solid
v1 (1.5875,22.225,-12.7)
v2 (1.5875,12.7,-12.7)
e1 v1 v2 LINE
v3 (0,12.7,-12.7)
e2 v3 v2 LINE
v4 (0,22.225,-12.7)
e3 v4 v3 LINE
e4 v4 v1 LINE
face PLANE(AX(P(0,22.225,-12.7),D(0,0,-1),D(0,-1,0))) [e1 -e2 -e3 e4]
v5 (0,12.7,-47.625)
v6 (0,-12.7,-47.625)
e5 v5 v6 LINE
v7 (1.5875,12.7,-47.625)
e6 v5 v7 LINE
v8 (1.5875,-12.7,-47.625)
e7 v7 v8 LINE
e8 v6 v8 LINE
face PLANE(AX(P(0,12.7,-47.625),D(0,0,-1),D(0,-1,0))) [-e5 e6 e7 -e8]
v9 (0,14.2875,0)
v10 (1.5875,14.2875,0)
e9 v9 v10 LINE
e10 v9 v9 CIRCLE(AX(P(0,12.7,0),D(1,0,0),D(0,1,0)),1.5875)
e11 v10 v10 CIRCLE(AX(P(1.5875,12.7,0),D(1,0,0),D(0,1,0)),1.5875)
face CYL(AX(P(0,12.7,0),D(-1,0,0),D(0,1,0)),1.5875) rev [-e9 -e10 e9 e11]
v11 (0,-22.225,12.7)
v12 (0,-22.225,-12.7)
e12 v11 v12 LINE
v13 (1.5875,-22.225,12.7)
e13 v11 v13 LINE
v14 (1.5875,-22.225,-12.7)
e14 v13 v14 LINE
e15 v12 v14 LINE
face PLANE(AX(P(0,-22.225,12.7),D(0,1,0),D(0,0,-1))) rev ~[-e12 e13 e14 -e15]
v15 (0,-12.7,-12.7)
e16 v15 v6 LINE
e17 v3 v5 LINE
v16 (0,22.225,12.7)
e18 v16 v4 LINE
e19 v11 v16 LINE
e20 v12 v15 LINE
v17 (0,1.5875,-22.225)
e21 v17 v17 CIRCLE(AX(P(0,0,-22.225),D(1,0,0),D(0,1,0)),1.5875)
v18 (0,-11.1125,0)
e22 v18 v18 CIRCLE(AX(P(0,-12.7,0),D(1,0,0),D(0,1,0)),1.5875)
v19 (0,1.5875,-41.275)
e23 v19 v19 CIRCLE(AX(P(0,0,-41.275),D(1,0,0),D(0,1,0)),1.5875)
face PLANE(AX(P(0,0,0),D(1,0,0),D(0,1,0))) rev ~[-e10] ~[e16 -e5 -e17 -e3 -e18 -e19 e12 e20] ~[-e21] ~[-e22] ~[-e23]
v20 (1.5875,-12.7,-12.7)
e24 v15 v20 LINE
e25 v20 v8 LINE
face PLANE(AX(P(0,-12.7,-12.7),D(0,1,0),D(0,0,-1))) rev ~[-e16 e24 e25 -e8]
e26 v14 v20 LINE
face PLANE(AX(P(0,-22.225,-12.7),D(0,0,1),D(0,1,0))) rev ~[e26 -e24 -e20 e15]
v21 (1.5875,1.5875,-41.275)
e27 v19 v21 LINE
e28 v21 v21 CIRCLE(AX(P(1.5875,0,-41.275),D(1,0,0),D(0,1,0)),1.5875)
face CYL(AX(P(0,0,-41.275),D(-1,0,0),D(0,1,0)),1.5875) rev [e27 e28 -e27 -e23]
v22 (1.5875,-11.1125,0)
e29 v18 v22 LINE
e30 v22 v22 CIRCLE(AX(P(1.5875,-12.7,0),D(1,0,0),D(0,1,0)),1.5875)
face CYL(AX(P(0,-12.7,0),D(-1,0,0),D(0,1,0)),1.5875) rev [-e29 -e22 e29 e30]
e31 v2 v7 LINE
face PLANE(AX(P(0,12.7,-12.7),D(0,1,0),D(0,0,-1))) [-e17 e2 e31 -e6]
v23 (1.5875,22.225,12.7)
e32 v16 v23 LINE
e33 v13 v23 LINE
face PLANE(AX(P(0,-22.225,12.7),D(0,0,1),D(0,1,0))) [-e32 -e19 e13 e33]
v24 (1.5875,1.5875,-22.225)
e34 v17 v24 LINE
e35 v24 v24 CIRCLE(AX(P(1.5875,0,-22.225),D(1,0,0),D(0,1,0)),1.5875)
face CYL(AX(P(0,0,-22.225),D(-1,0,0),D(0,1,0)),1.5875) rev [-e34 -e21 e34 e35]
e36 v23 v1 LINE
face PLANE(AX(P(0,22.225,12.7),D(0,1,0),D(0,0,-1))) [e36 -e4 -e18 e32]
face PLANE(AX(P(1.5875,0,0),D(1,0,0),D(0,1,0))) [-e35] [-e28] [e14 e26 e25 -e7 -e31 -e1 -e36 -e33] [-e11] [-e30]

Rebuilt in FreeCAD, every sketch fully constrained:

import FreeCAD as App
import Part
import Sketcher

V = App.Vector
Q = App.Units.Quantity

doc = App.newDocument("Part")
params = doc.addObject("Spreadsheet::Sheet", "Params")
for row, (alias, value) in enumerate([
    ("sketch1_width", "1 in"),
    ("sketch1_diameter", "0.125 in"),
    ("sketch1_width2", "0.375 in"),
    ("pad1_length", "0.0625 in"),
], start=1):
    params.set(f"A{row}", alias)
    params.set(f"B{row}", "=" + value)
    params.setAlias(f"B{row}", alias)

body = doc.addObject("PartDesign::Body", "Body")

# Sketch on YZ plane
sketch1 = body.newObject("Sketcher::SketchObject", "Sketch")
sketch1.AttachmentSupport = (doc.getObject("YZ_Plane"), [""])
sketch1.MapMode = "FlatFace"
sketch1.addGeometry(Part.LineSegment(V(22.2, -12.7, 0), V(22.2, 12.7, 0)), False)
sketch1.addGeometry(Part.LineSegment(V(22.2, 12.7, 0), V(-22.2, 12.7, 0)), False)
sketch1.addGeometry(Part.LineSegment(V(-22.2, 12.7, 0), V(-22.2, -12.7, 0)), False)
sketch1.addGeometry(Part.LineSegment(V(-22.2, -12.7, 0), V(-12.7, -12.7, 0)), False)
sketch1.addGeometry(Part.LineSegment(V(-12.7, -12.7, 0), V(-12.7, -47.6, 0)), False)
sketch1.addGeometry(Part.LineSegment(V(-12.7, -47.6, 0), V(12.7, -47.6, 0)), False)
sketch1.addGeometry(Part.LineSegment(V(12.7, -47.6, 0), V(12.7, -12.7, 0)), False)
sketch1.addGeometry(Part.LineSegment(V(12.7, -12.7, 0), V(22.2, -12.7, 0)), False)
sketch1.addGeometry(Part.Circle(V(0, -41.3, 0), V(0, 0, 1), 1.6), False)
sketch1.addGeometry(Part.Circle(V(0, -22.2, 0), V(0, 0, 1), 1.6), False)
sketch1.addGeometry(Part.Circle(V(-12.7, 0, 0), V(0, 0, 1), 1.6), False)
sketch1.addGeometry(Part.Circle(V(12.7, 0, 0), V(0, 0, 1), 1.6), False)
sketch1.addConstraint(Sketcher.Constraint("Coincident", 0, 2, 1, 1))
sketch1.addConstraint(Sketcher.Constraint("Coincident", 1, 2, 2, 1))
sketch1.addConstraint(Sketcher.Constraint("Coincident", 2, 2, 3, 1))
sketch1.addConstraint(Sketcher.Constraint("Coincident", 3, 2, 4, 1))
sketch1.addConstraint(Sketcher.Constraint("Coincident", 4, 2, 5, 1))
sketch1.addConstraint(Sketcher.Constraint("Coincident", 5, 2, 6, 1))
sketch1.addConstraint(Sketcher.Constraint("Coincident", 6, 2, 7, 1))
sketch1.addConstraint(Sketcher.Constraint("Coincident", 7, 2, 0, 1))
sketch1.addConstraint(Sketcher.Constraint("Vertical", 0))
sketch1.addConstraint(Sketcher.Constraint("Horizontal", 1))
sketch1.addConstraint(Sketcher.Constraint("Vertical", 2))
sketch1.addConstraint(Sketcher.Constraint("Horizontal", 3))
sketch1.addConstraint(Sketcher.Constraint("Vertical", 4))
sketch1.addConstraint(Sketcher.Constraint("Horizontal", 5))
sketch1.addConstraint(Sketcher.Constraint("Vertical", 6))
sketch1.addConstraint(Sketcher.Constraint("Horizontal", 7))
sketch1.addConstraint(Sketcher.Constraint("Equal", 8, 9))
sketch1.addConstraint(Sketcher.Constraint("Equal", 9, 10))
sketch1.addConstraint(Sketcher.Constraint("Equal", 10, 11))
sketch1.addConstraint(Sketcher.Constraint("Symmetric", 10, 3, 11, 3, -1, 1))
sketch1.addConstraint(Sketcher.Constraint("Symmetric", 0, 2, 2, 2, -1, 1))
sketch1.addConstraint(Sketcher.Constraint("Symmetric", 3, 2, 6, 2, -2))
sketch1.addConstraint(Sketcher.Constraint("PointOnObject", 8, 3, -2))
sketch1.addConstraint(Sketcher.Constraint("PointOnObject", 9, 3, -2))
sketch1.addConstraint(Sketcher.Constraint("PointOnObject", 10, 3, -1))
sketch1.addConstraint(Sketcher.Constraint("Vertical", 10, 3, 3, 2))
sketch1.addConstraint(Sketcher.Constraint("Equal", 5, 0))
sketch1.addConstraint(Sketcher.Constraint("DistanceX", 5, 1, 5, 2, Q("1 in")))
sketch1.addConstraint(Sketcher.Constraint("Diameter", 8, Q("0.125 in")))
sketch1.addConstraint(Sketcher.Constraint("DistanceY", 4, 2, 9, 3, Q("1 in")))
sketch1.addConstraint(Sketcher.Constraint("DistanceX", 3, 1, 3, 2, Q("0.375 in")))
sketch1.addConstraint(Sketcher.Constraint("DistanceY", 8, 3, 9, 3, Q("0.75 in")))
sketch1.addConstraint(Sketcher.Constraint("DistanceY", 9, 3, -1, 1, Q("0.875 in")))
sketch1.setExpression("Constraints[27]", "Params.sketch1_width")
sketch1.setExpression("Constraints[28]", "Params.sketch1_diameter")
sketch1.setExpression("Constraints[30]", "Params.sketch1_width2")
pad1 = body.newObject("PartDesign::Pad", "Pad")
pad1.Profile = sketch1
pad1.setExpression("Length", "Params.pad1_length")

doc.recompute()
